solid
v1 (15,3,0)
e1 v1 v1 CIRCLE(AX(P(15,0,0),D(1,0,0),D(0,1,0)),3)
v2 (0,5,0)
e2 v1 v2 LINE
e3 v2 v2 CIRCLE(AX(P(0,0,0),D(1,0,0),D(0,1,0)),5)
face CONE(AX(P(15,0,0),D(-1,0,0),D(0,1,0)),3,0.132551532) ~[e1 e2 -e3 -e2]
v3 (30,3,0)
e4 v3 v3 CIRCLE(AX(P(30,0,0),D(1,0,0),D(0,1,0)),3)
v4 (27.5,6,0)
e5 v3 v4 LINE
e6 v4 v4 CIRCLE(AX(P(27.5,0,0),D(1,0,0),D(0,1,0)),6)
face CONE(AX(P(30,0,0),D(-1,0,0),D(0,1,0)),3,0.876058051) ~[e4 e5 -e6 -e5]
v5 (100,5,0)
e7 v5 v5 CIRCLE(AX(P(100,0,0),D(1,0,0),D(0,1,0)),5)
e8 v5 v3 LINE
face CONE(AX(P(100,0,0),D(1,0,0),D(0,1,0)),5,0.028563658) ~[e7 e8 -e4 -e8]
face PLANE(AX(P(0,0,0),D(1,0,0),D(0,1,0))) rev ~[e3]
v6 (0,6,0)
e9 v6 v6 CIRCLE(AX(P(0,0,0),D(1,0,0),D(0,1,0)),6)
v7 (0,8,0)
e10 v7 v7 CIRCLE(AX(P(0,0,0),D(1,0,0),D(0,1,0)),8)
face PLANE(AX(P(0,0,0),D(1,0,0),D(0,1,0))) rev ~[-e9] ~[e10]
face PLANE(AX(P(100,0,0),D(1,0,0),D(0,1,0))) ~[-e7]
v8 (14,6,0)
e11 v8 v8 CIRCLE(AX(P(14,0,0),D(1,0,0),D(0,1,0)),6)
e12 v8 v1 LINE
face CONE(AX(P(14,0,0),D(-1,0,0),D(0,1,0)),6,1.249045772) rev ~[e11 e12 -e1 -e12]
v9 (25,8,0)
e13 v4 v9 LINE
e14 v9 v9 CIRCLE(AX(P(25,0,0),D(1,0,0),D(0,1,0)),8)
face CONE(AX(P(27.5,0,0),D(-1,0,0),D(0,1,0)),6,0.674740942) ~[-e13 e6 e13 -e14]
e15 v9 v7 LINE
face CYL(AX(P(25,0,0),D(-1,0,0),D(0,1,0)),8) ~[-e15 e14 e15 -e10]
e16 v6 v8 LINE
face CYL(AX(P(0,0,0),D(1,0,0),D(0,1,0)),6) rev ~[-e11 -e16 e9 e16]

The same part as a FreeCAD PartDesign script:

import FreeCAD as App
import Part
import Sketcher
from FreeCAD import Vector


def add_polygon(sketch, points):
    """Adds a closed chain of lines whose ends are joined by coincident constraints."""
    first, n = sketch.GeometryCount, len(points)
    for a, b in zip(points, points[1:] + points[:1]):
        sketch.addGeometry(Part.LineSegment(App.Vector(*a, 0), App.Vector(*b, 0)), False)
    for i in range(n):
        sketch.addConstraint(Sketcher.Constraint("Coincident", first + i, 2, first + (i + 1) % n, 1))

doc = App.newDocument("Part")
body = doc.addObject("PartDesign::Body", "Body")

# Sketch on XY plane
sketch1 = doc.addObject("Sketcher::SketchObject", "Sketch")
body.addObject(sketch1)
sketch1.AttachmentSupport = (doc.XY_Plane, [""])
sketch1.MapMode = "FlatFace"
add_polygon(sketch1, [(0, 0), (100, 0), (100, 5), (30, 3), (27.5, 6), (25, 8), (0, 8), (0, 6), (14, 6), (15, 3), (0, 5)])  # lines 0-10
sketch1.addConstraint(Sketcher.Constraint("Horizontal", 0))
sketch1.addConstraint(Sketcher.Constraint("Vertical", 1))
sketch1.addConstraint(Sketcher.Constraint("Horizontal", 5))
sketch1.addConstraint(Sketcher.Constraint("Vertical", 6))
sketch1.addConstraint(Sketcher.Constraint("Horizontal", 7))
sketch1.addConstraint(Sketcher.Constraint("Vertical", 10))
sketch1.addConstraint(Sketcher.Constraint("Coincident", 10, 2, -1, 1))
sketch1.addConstraint(Sketcher.Constraint("PointOnObject", 5, 2, -2))
sketch1.addConstraint(Sketcher.Constraint("Horizontal", 3, 2, 6, 2))
sketch1.addConstraint(Sketcher.Constraint("Horizontal", 2, 2, 8, 2))
sketch1.addConstraint(Sketcher.Constraint("Horizontal", 1, 2, 9, 2))
sketch1.addConstraint(Sketcher.Constraint("DistanceX", 0, 1, 0, 2, 100.0))
sketch1.addConstraint(Sketcher.Constraint("DistanceX", 5, 2, 5, 1, 25.0))
sketch1.addConstraint(Sketcher.Constraint("DistanceX", 7, 1, 7, 2, 14.0))
sketch1.addConstraint(Sketcher.Constraint("DistanceY", 1, 1, 1, 2, 5.0))
sketch1.addConstraint(Sketcher.Constraint("DistanceY", 6, 2, 6, 1, 2.0))
sketch1.addConstraint(Sketcher.Constraint("DistanceX", -1, 1, 2, 2, 30.0))
sketch1.addConstraint(Sketcher.Constraint("DistanceY", -1, 1, 2, 2, 3.0))
sketch1.addConstraint(Sketcher.Constraint("DistanceY", -1, 1, 3, 2, 6.0))
sketch1.addConstraint(Sketcher.Constraint("DistanceX", -1, 1, 8, 2, 15.0))
sketch1.addConstraint(Sketcher.Constraint("DistanceX", -1, 1, 3, 2, 27.5))
revolution = doc.addObject("PartDesign::Revolution", "Revolution")
body.addObject(revolution)
revolution.Profile = sketch1
revolution.ReferenceAxis = (sketch1, ["H_Axis"])
revolution.Angle = 360

doc.recompute()
